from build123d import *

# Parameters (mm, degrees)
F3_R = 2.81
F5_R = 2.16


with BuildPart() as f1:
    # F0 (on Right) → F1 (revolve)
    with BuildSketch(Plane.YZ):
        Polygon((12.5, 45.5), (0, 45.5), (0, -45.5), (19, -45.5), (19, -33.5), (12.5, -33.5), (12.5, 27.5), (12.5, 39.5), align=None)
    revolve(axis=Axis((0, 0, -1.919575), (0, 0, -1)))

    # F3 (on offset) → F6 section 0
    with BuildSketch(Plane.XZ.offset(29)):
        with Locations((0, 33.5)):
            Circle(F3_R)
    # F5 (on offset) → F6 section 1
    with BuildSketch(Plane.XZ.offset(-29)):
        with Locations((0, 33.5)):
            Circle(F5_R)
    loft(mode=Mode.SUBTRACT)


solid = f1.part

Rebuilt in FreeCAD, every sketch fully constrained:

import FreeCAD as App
import Part
import Sketcher


def add_polygon(sketch, points):
    """Adds a closed chain of lines whose ends are joined by coincident constraints."""
    first, n = sketch.GeometryCount, len(points)
    for a, b in zip(points, points[1:] + points[:1]):
        sketch.addGeometry(Part.LineSegment(App.Vector(*a, 0), App.Vector(*b, 0)), False)
    for i in range(n):
        sketch.addConstraint(Sketcher.Constraint("Coincident", first + i, 2, first + (i + 1) % n, 1))

doc = App.newDocument("Part")
body = doc.addObject("PartDesign::Body", "Body")

# Sketch on YZ plane
sketch1 = body.newObject("Sketcher::SketchObject", "Sketch")
sketch1.AttachmentSupport = (doc.getObject("YZ_Plane"), [""])
sketch1.MapMode = "FlatFace"
add_polygon(sketch1, [(12, 46), (0, 46), (0, -46), (19, -46), (19, -34), (12, -34)])  # lines 0-5
sketch1.addConstraint([
    Sketcher.Constraint("Horizontal", 0),
    Sketcher.Constraint("Vertical", 1),
    Sketcher.Constraint("Horizontal", 2),
    Sketcher.Constraint("Vertical", 3),
    Sketcher.Constraint("Horizontal", 4),
    Sketcher.Constraint("Vertical", 5),
    Sketcher.Constraint("Symmetric", 0, 2, 1, 2, -1, 1),
    Sketcher.Constraint("DistanceX", 2, 1, 2, 2, 19.0),
    Sketcher.Constraint("DistanceY", 1, 2, 1, 1, 91.0),
    Sketcher.Constraint("DistanceY", 3, 1, 3, 2, 12.0),
    Sketcher.Constraint("DistanceX", 0, 2, 0, 1, 12.5),
])
revolution = body.newObject("PartDesign::Revolution", "Revolution")
revolution.Profile = sketch1
revolution.ReferenceAxis = (sketch1, ["V_Axis"])
revolution.Angle = 360

# Sketch on XZ plane
sketch2 = body.newObject("Sketcher::SketchObject", "Sketch001")
sketch2.AttachmentSupport = (doc.getObject("XZ_Plane"), [""])
sketch2.MapMode = "FlatFace"
sketch2.AttachmentOffset = App.Placement(App.Vector(0, 0, 29), App.Rotation())
sketch2.addGeometry(Part.Circle(App.Vector(0, 33.5, 0), App.Vector(0, 0, 1), 2.8), False)
sketch2.addConstraint([
    Sketcher.Constraint("PointOnObject", 0, 3, -2),
    Sketcher.Constraint("Diameter", 0, 5.62),
    Sketcher.Constraint("DistanceY", -1, 1, 0, 3, 33.5),
])

# Sketch on XZ plane
sketch3 = body.newObject("Sketcher::SketchObject", "Sketch002")
sketch3.AttachmentSupport = (doc.getObject("XZ_Plane"), [""])
sketch3.MapMode = "FlatFace"
sketch3.AttachmentOffset = App.Placement(App.Vector(0, 0, -29), App.Rotation())
sketch3.addGeometry(Part.Circle(App.Vector(0, 33.5, 0), App.Vector(0, 0, 1), 2.2), False)
sketch3.addConstraint([
    Sketcher.Constraint("PointOnObject", 0, 3, -2),
    Sketcher.Constraint("Diameter", 0, 4.32),
    Sketcher.Constraint("DistanceY", -1, 1, 0, 3, 33.5),
])

subtractiveloft = body.newObject("PartDesign::SubtractiveLoft", "SubtractiveLoft")
subtractiveloft.Profile = sketch2
subtractiveloft.Sections = [sketch3]

doc.recompute()
